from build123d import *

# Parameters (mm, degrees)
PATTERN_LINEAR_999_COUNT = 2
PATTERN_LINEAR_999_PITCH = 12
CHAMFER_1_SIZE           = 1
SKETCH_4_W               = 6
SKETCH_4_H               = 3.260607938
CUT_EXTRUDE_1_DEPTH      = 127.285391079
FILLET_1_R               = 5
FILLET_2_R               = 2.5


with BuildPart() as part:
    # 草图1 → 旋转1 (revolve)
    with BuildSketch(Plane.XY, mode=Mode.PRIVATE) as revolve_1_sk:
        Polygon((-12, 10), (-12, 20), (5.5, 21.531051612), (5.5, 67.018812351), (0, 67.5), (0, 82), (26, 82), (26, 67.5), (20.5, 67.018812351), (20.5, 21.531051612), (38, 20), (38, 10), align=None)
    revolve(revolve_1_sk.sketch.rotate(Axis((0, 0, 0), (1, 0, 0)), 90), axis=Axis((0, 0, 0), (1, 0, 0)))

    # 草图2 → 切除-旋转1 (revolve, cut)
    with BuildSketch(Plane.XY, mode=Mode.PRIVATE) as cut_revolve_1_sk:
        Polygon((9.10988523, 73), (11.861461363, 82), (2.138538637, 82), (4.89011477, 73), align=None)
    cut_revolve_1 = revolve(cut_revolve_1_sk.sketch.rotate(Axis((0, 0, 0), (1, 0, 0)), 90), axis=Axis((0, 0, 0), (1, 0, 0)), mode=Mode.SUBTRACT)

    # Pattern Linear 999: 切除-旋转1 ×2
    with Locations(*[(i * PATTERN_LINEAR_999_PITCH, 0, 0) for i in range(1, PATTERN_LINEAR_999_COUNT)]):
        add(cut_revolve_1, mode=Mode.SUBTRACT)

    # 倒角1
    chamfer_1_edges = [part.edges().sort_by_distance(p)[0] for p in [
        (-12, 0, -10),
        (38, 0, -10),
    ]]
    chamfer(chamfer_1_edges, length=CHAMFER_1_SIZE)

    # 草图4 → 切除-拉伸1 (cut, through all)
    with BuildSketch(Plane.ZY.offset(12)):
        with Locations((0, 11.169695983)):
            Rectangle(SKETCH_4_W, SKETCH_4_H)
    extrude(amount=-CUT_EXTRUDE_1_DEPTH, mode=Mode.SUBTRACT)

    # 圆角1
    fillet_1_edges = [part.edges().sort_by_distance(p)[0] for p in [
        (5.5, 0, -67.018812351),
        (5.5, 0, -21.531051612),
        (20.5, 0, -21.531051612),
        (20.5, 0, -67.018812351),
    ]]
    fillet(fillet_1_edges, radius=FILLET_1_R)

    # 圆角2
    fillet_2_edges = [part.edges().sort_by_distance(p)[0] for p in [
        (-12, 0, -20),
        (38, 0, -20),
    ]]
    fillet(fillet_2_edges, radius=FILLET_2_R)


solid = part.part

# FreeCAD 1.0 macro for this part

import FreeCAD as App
import Part
import Sketcher
Q = App.Units.Quantity


def edges_at(feature, points):
    """Names of the edges that pass closest to the given points."""
    edges = feature.Shape.Edges
    near = lambda p: min(range(len(edges)), key=lambda i: edges[i].distToShape(Part.Vertex(*p))[0])
    return sorted({f"Edge{near(p) + 1}" for p in points})

doc = App.newDocument("Part")
body = doc.addObject("PartDesign::Body", "Body")

sketch1 = doc.addObject("Sketcher::SketchObject", "Sketch")
body.addObject(sketch1)
sketch1.AttachmentSupport = (doc.XY_Plane, [""])
sketch1.MapMode = "FlatFace"
sketch1.addGeometry(Part.LineSegment(App.Vector(-12, 20, 0), App.Vector(-12, 10, 0)), False)
sketch1.addGeometry(Part.LineSegment(App.Vector(-12, 10, 0), App.Vector(38, 10, 0)), False)
sketch1.addGeometry(Part.LineSegment(App.Vector(38, 10, 0), App.Vector(38, 20, 0)), False)
sketch1.addGeometry(Part.LineSegment(App.Vector(38, 20, 0), App.Vector(20.5, 21.531052, 0)), False)
sketch1.addGeometry(Part.LineSegment(App.Vector(20.5, 21.531052, 0), App.Vector(20.5, 67.018812, 0)), False)
sketch1.addGeometry(Part.LineSegment(App.Vector(20.5, 67.018812, 0), App.Vector(26, 67.5, 0)), False)
sketch1.addGeometry(Part.LineSegment(App.Vector(26, 67.5, 0), App.Vector(26, 82, 0)), False)
sketch1.addGeometry(Part.LineSegment(App.Vector(26, 82, 0), App.Vector(0, 82, 0)), False)
sketch1.addGeometry(Part.LineSegment(App.Vector(0, 82, 0), App.Vector(0, 67.5, 0)), False)
sketch1.addGeometry(Part.LineSegment(App.Vector(0, 67.5, 0), App.Vector(5.5, 67.018812, 0)), False)
sketch1.addGeometry(Part.LineSegment(App.Vector(5.5, 67.018812, 0), App.Vector(5.5, 21.531052, 0)), False)
sketch1.addGeometry(Part.LineSegment(App.Vector(5.5, 21.531052, 0), App.Vector(-12, 20, 0)), False)
sketch1.addConstraint(Sketcher.Constraint("Coincident", 0, 2, 1, 1))
sketch1.addConstraint(Sketcher.Constraint("Coincident", 1, 2, 2, 1))
sketch1.addConstraint(Sketcher.Constraint("Coincident", 2, 2, 3, 1))
sketch1.addConstraint(Sketcher.Constraint("Coincident", 3, 2, 4, 1))
sketch1.addConstraint(Sketcher.Constraint("Coincident", 4, 2, 5, 1))
sketch1.addConstraint(Sketcher.Constraint("Coincident", 5, 2, 6, 1))
sketch1.addConstraint(Sketcher.Constraint("Coincident", 6, 2, 7, 1))
sketch1.addConstraint(Sketcher.Constraint("Coincident", 7, 2, 8, 1))
sketch1.addConstraint(Sketcher.Constraint("Coincident", 8, 2, 9, 1))
sketch1.addConstraint(Sketcher.Constraint("Coincident", 9, 2, 10, 1))
sketch1.addConstraint(Sketcher.Constraint("Coincident", 10, 2, 11, 1))
sketch1.addConstraint(Sketcher.Constraint("Coincident", 11, 2, 0, 1))
sketch1.addConstraint(Sketcher.Constraint("Vertical", 0))
sketch1.addConstraint(Sketcher.Constraint("Horizontal", 1))
sketch1.addConstraint(Sketcher.Constraint("Vertical", 2))
sketch1.addConstraint(Sketcher.Constraint("Vertical", 4))
sketch1.addConstraint(Sketcher.Constraint("Vertical", 6))
sketch1.addConstraint(Sketcher.Constraint("Horizontal", 7))
sketch1.addConstraint(Sketcher.Constraint("Vertical", 8))
sketch1.addConstraint(Sketcher.Constraint("Vertical", 10))
sketch1.addConstraint(Sketcher.Constraint("PointOnObject", 7, 2, -2))
sketch1.addConstraint(Sketcher.Constraint("Parallel", 3, 9))
sketch1.addConstraint(Sketcher.Constraint("Parallel", 5, 11))
sketch1.addConstraint(Sketcher.Constraint("Horizontal", 5, 2, 8, 2))
sketch1.addConstraint(Sketcher.Constraint("Horizontal", 4, 2, 9, 2))
sketch1.addConstraint(Sketcher.Constraint("Horizontal", 3, 2, 10, 2))
sketch1.addConstraint(Sketcher.Constraint("Horizontal", 2, 2, 11, 2))
sketch1.addConstraint(Sketcher.Constraint("Equal", 5, 9))
sketch1.addConstraint(Sketcher.Constraint("DistanceX", 1, 1, 1, 2, Q("50 mm")))
sketch1.addConstraint(Sketcher.Constraint("DistanceX", 7, 2, 7, 1, Q("26 mm")))
sketch1.addConstraint(Sketcher.Constraint("DistanceY", 0, 2, 0, 1, Q("10 mm")))
sketch1.addConstraint(Sketcher.Constraint("Angle", 3, Q("175 deg")))
sketch1.addConstraint(Sketcher.Constraint("DistanceY", 6, 1, 6, 2, Q("14.5 mm")))
sketch1.addConstraint(Sketcher.Constraint("DistanceY", -1, 1, 0, 2, Q("10 mm")))
sketch1.addConstraint(Sketcher.Constraint("DistanceY", -1, 1, 6, 2, Q("82 mm")))
sketch1.addConstraint(Sketcher.Constraint("DistanceX", 9, 2, 4, 2, Q("15 mm")))
revolution = doc.addObject("PartDesign::Revolution", "Revolution")
body.addObject(revolution)
revolution.Profile = sketch1
revolution.ReferenceAxis = (sketch1, ["H_Axis"])
revolution.Angle = 360

sketch2 = doc.addObject("Sketcher::SketchObject", "Sketch001")
body.addObject(sketch2)
sketch2.AttachmentSupport = (doc.XY_Plane, [""])
sketch2.MapMode = "FlatFace"
sketch2.addGeometry(Part.LineSegment(App.Vector(9.109885, 73, 0), App.Vector(11.861461, 82, 0)), False)
sketch2.addGeometry(Part.LineSegment(App.Vector(11.861461, 82, 0), App.Vector(2.138539, 82, 0)), False)
sketch2.addGeometry(Part.LineSegment(App.Vector(2.138539, 82, 0), App.Vector(4.890115, 73, 0)), False)
sketch2.addGeometry(Part.LineSegment(App.Vector(4.890115, 73, 0), App.Vector(9.109885, 73, 0)), False)
sketch2.addConstraint(Sketcher.Constraint("Coincident", 0, 2, 1, 1))
sketch2.addConstraint(Sketcher.Constraint("Coincident", 1, 2, 2, 1))
sketch2.addConstraint(Sketcher.Constraint("Coincident", 2, 2, 3, 1))
sketch2.addConstraint(Sketcher.Constraint("Coincident", 3, 2, 0, 1))
sketch2.addConstraint(Sketcher.Constraint("Horizontal", 1))
sketch2.addConstraint(Sketcher.Constraint("Horizontal", 3))
sketch2.addConstraint(Sketcher.Constraint("Equal", 0, 2))
sketch2.addConstraint(Sketcher.Constraint("Angle", 0, Q("73 deg")))
sketch2.addConstraint(Sketcher.Constraint("DistanceY", -1, 1, 0, 2, Q("82 mm")))
sketch2.addConstraint(Sketcher.Constraint("DistanceY", -1, 1, 2, 2, Q("73 mm")))
sketch2.addConstraint(Sketcher.Constraint("DistanceX", 3, 1, 3, 2, Q("4.21977 mm")))
sketch2.addConstraint(Sketcher.Constraint("DistanceX", -1, 1, 0, 2, Q("11.861461 mm")))
groove = doc.addObject("PartDesign::Groove", "Groove")
body.addObject(groove)
groove.Profile = sketch2
groove.ReferenceAxis = (sketch2, ["H_Axis"])
groove.Angle = 360
doc.recompute()

linearpattern = doc.addObject("PartDesign::LinearPattern", "LinearPattern")
body.addObject(linearpattern)
linearpattern.Originals = [groove]
linearpattern.Direction = (doc.X_Axis, [""])
linearpattern.Mode = "offset"
linearpattern.Offset = 12
linearpattern.Occurrences = 2
body.Tip = linearpattern
doc.recompute()

chamfer = doc.addObject("PartDesign::Chamfer", "Chamfer")
body.addObject(chamfer)
chamfer.Base = (linearpattern, edges_at(linearpattern, [(-12, 0, -10), (38, 0, -10)]))
chamfer.Size = 1

sketch3 = doc.addObject("Sketcher::SketchObject", "Sketch002")
body.addObject(sketch3)
sketch3.AttachmentSupport = (doc.YZ_Plane, [""])
sketch3.MapMode = "FlatFace"
sketch3.AttachmentOffset = App.Placement(App.Vector(0, 0, -12), App.Rotation())
sketch3.addGeometry(Part.LineSegment(App.Vector(12.8, -3, 0), App.Vector(9.539392, -3, 0)), False)
sketch3.addGeometry(Part.LineSegment(App.Vector(9.539392, -3, 0), App.Vector(9.539392, 3, 0)), False)
sketch3.addGeometry(Part.LineSegment(App.Vector(9.539392, 3, 0), App.Vector(12.8, 3, 0)), False)
sketch3.addGeometry(Part.LineSegment(App.Vector(12.8, 3, 0), App.Vector(12.8, -3, 0)), False)
sketch3.addConstraint(Sketcher.Constraint("Coincident", 0, 2, 1, 1))
sketch3.addConstraint(Sketcher.Constraint("Coincident", 1, 2, 2, 1))
sketch3.addConstraint(Sketcher.Constraint("Coincident", 2, 2, 3, 1))
sketch3.addConstraint(Sketcher.Constraint("Coincident", 3, 2, 0, 1))
sketch3.addConstraint(Sketcher.Constraint("Horizontal", 0))
sketch3.addConstraint(Sketcher.Constraint("Vertical", 1))
sketch3.addConstraint(Sketcher.Constraint("Horizontal", 2))
sketch3.addConstraint(Sketcher.Constraint("Vertical", 3))
sketch3.addConstraint(Sketcher.Constraint("DistanceY", 1, 1, 1, 2, Q("6 mm")))
sketch3.addConstraint(Sketcher.Constraint("DistanceY", 0, 2, -1, 1, Q("3 mm")))
sketch3.addConstraint(Sketcher.Constraint("DistanceX", -1, 1, 2, 2, Q("12.8 mm")))
sketch3.addConstraint(Sketcher.Constraint("DistanceX", 0, 2, 0, 1, Q("3.260608 mm")))
pocket1 = doc.addObject("PartDesign::Pocket", "Pocket")
body.addObject(pocket1)
pocket1.Profile = sketch3
pocket1.Type = "ThroughAll"
pocket1.Reversed = True
doc.recompute()

fillet = doc.addObject("PartDesign::Fillet", "Fillet")
body.addObject(fillet)
fillet.Base = (pocket1, edges_at(pocket1, [
    (5.5, 0, -67.019),
    (5.5, 0, -21.531),
    (20.5, 0, -21.531),
    (20.5, 0, -67.019),
]))
fillet.Radius = 5
doc.recompute()

fillet2 = doc.addObject("PartDesign::Fillet", "Fillet001")
body.addObject(fillet2)
fillet2.Base = (fillet, edges_at(fillet, [(-12, 0, -20), (38, 0, -20)]))
fillet2.Radius = 2.5

doc.recompute()
